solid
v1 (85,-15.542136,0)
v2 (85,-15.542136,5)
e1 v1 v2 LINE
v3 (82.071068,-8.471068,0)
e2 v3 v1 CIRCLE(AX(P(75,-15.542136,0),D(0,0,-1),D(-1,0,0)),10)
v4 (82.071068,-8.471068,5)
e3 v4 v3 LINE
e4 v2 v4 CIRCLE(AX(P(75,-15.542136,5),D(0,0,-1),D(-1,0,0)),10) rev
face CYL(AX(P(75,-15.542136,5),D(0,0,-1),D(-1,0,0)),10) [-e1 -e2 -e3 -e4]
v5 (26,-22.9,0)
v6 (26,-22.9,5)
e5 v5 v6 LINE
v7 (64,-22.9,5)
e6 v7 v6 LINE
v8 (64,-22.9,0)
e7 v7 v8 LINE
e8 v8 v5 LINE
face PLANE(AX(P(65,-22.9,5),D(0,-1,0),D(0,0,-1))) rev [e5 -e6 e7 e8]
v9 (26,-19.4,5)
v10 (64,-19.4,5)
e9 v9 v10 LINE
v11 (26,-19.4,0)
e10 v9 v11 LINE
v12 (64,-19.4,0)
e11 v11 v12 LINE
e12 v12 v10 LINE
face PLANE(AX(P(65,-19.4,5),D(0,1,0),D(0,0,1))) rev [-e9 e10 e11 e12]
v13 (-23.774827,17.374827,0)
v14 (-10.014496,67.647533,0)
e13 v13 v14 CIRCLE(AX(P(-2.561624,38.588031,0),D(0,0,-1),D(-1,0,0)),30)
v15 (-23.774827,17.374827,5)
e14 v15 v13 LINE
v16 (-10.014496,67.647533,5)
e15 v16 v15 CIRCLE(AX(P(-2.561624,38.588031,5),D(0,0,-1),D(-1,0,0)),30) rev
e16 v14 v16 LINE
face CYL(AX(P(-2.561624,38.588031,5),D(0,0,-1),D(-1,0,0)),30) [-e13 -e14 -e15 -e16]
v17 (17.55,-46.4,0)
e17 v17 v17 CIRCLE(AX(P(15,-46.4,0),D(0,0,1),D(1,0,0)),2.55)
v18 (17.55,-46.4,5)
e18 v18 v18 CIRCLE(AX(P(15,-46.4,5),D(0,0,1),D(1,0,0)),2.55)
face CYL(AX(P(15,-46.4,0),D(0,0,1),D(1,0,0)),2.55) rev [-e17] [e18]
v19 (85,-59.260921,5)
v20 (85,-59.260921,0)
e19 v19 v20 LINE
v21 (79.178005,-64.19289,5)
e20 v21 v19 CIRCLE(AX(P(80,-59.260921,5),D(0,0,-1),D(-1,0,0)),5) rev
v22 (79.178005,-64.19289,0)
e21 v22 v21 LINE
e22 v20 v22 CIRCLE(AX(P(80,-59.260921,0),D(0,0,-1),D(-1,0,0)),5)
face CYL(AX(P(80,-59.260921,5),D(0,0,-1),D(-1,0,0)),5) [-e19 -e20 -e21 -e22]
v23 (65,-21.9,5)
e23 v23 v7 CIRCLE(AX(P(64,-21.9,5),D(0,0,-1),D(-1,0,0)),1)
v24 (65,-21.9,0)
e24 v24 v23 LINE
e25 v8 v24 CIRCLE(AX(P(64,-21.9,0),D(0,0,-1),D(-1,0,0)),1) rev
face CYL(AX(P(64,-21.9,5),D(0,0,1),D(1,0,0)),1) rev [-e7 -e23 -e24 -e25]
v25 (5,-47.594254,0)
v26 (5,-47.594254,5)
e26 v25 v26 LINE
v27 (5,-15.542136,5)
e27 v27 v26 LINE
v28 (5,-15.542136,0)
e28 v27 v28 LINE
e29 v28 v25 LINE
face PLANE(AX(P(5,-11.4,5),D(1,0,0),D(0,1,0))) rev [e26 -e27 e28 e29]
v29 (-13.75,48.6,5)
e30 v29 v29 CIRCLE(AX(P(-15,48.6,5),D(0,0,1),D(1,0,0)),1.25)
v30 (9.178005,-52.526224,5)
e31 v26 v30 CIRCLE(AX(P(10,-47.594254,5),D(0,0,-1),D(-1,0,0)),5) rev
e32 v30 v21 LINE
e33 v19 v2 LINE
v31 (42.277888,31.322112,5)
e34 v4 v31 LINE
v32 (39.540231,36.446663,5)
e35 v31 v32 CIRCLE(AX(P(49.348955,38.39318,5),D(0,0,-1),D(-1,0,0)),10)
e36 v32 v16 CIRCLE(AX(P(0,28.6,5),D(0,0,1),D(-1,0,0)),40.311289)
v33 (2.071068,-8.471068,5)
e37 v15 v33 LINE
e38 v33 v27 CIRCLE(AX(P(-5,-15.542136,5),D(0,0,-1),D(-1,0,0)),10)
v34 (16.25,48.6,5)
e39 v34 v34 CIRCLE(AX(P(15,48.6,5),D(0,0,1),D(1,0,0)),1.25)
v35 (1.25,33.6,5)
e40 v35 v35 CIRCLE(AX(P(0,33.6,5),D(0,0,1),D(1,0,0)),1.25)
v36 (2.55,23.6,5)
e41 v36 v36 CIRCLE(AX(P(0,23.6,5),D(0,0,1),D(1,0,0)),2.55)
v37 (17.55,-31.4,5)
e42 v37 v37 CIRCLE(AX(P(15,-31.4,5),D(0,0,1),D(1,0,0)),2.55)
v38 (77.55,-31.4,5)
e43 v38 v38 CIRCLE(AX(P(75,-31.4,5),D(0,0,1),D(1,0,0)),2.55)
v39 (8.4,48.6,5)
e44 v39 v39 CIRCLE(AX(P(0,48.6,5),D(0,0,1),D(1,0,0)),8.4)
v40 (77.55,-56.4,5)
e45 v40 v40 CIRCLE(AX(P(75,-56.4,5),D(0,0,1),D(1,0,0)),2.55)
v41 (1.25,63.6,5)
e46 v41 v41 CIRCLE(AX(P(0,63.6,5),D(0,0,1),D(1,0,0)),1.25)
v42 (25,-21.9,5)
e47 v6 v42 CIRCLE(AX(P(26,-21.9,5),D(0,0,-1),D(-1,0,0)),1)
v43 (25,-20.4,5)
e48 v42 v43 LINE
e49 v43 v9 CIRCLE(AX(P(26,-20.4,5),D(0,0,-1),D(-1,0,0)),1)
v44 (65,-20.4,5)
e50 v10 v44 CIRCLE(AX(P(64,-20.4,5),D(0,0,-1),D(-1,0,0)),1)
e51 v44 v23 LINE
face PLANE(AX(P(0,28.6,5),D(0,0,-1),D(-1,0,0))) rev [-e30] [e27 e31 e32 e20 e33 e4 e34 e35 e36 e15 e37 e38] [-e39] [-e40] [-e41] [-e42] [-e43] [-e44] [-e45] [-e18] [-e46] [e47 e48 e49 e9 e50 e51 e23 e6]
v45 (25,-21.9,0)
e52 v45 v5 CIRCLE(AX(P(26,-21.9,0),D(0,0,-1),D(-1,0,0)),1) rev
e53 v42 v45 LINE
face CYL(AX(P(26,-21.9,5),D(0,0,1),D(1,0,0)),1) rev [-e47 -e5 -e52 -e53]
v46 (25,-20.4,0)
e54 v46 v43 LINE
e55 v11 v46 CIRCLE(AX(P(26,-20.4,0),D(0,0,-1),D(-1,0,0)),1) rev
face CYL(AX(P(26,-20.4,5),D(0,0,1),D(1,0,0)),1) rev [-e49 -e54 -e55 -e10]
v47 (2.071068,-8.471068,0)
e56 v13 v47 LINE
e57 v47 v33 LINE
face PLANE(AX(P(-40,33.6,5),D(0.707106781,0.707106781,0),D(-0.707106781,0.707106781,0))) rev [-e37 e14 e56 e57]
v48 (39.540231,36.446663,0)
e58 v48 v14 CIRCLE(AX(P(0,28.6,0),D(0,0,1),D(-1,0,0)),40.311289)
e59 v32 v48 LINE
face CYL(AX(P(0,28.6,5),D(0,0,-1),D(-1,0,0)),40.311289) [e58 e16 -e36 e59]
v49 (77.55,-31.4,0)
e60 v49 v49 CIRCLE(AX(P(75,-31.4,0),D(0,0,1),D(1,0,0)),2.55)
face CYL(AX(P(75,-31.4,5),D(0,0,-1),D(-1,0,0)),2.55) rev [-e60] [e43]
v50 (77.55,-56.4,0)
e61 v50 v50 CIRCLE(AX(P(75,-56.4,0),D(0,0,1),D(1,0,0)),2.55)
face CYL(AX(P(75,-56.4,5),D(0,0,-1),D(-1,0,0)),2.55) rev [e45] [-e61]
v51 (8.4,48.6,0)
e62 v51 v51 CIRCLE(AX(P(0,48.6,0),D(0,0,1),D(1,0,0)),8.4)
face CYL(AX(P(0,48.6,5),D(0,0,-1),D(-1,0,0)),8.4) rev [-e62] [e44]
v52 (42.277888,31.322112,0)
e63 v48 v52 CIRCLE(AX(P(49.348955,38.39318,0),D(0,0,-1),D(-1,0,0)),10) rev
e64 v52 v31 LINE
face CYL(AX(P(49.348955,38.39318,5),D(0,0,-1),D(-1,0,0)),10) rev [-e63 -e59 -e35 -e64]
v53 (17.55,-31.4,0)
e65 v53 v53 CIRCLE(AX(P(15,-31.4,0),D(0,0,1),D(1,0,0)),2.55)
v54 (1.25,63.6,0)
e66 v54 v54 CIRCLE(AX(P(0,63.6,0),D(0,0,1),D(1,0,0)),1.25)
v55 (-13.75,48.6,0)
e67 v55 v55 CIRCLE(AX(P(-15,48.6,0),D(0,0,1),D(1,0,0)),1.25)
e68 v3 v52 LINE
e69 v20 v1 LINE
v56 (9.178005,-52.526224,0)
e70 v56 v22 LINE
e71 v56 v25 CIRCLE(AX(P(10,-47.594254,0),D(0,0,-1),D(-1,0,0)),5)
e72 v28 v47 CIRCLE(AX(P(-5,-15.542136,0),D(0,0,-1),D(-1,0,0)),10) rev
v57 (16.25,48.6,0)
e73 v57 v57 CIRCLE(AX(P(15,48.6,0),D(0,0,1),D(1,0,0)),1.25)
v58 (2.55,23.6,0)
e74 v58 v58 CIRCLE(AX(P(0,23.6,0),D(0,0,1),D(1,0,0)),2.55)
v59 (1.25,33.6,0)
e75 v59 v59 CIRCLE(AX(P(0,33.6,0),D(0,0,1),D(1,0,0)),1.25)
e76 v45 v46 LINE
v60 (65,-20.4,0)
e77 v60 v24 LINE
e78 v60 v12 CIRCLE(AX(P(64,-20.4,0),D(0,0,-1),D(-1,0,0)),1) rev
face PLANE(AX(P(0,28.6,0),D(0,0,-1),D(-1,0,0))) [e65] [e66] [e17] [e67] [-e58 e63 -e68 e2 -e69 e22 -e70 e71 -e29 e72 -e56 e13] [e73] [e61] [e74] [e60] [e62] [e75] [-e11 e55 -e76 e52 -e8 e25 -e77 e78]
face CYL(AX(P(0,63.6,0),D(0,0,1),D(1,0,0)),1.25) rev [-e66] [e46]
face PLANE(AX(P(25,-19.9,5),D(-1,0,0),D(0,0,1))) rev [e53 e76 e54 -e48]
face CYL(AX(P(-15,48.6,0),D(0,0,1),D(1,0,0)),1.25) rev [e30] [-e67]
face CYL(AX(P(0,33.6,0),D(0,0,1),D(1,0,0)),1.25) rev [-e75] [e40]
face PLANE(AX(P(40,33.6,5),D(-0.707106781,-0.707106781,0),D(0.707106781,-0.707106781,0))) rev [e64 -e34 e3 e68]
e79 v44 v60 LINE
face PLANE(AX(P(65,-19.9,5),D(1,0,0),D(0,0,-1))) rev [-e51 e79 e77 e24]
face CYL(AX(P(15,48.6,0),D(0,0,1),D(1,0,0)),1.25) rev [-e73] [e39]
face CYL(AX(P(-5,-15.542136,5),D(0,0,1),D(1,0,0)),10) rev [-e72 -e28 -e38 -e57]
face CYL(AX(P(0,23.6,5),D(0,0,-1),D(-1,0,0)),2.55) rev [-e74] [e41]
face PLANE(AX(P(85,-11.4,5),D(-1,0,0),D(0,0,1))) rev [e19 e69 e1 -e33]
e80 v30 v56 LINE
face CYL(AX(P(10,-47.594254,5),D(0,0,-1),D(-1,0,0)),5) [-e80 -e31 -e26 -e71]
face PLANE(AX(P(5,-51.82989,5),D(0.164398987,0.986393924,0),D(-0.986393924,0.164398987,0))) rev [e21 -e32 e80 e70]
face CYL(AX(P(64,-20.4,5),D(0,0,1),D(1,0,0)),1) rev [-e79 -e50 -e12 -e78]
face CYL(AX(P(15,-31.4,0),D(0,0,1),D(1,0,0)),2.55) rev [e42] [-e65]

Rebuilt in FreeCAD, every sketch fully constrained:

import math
import FreeCAD as App
import Part
import Sketcher

V = App.Vector
Q = App.Units.Quantity


def edges_at(feature, points):
    """Names of the edges that pass closest to the given points."""
    edges = feature.Shape.Edges
    near = lambda p: min(range(len(edges)), key=lambda i: edges[i].distToShape(Part.Vertex(*p))[0])
    return sorted({f"Edge{near(p) + 1}" for p in points})


def add_polygon(sketch, points):
    """Adds a closed chain of lines whose ends are joined by coincident constraints."""
    first, n = sketch.GeometryCount, len(points)
    for a, b in zip(points, points[1:] + points[:1]):
        sketch.addGeometry(Part.LineSegment(App.Vector(*a, 0), App.Vector(*b, 0)), False)
    for i in range(n):
        sketch.addConstraint(Sketcher.Constraint("Coincident", first + i, 2, first + (i + 1) % n, 1))

doc = App.newDocument("Part")
body = doc.addObject("PartDesign::Body", "Body")

# Sketch on XY plane
sketch1 = body.newObject("Sketcher::SketchObject", "Sketch")
sketch1.AttachmentSupport = (doc.getObject("XY_Plane"), [""])
sketch1.MapMode = "FlatFace"
sketch1.addGeometry(Part.LineSegment(V(85, -11.4, 0), V(40, 33.6, 0)), False)
sketch1.addGeometry(Part.ArcOfCircle(Part.Circle(V(0, 28.6, 0), V(0, 0, 1), 40.311289), math.radians(7.125016), math.radians(172.874984)), False)
sketch1.addGeometry(Part.LineSegment(V(-40, 33.6, 0), V(5, -11.4, 0)), False)
sketch1.addGeometry(Part.LineSegment(V(5, -11.4, 0), V(5, -71.4, 0)), False)
sketch1.addGeometry(Part.LineSegment(V(5, -71.4, 0), V(85, -71.4, 0)), False)
sketch1.addGeometry(Part.LineSegment(V(85, -71.4, 0), V(85, -11.4, 0)), False)
sketch1.addGeometry(Part.Circle(V(75, -56.4, 0), V(0, 0, 1), 2.55), False)
sketch1.addGeometry(Part.Circle(V(75, -31.4, 0), V(0, 0, 1), 2.55), False)
sketch1.addGeometry(Part.Circle(V(0, 23.6, 0), V(0, 0, 1), 2.55), False)
sketch1.addGeometry(Part.Circle(V(0, 48.6, 0), V(0, 0, 1), 8.4), False)
sketch1.addConstraint(Sketcher.Constraint("Coincident", 0, 2, 1, 1))
sketch1.addConstraint(Sketcher.Constraint("Coincident", 1, 2, 2, 1))
sketch1.addConstraint(Sketcher.Constraint("Coincident", 2, 2, 3, 1))
sketch1.addConstraint(Sketcher.Constraint("Coincident", 3, 2, 4, 1))
sketch1.addConstraint(Sketcher.Constraint("Coincident", 4, 2, 5, 1))
sketch1.addConstraint(Sketcher.Constraint("Coincident", 5, 2, 0, 1))
sketch1.addConstraint(Sketcher.Constraint("Vertical", 3))
sketch1.addConstraint(Sketcher.Constraint("Horizontal", 4))
sketch1.addConstraint(Sketcher.Constraint("Vertical", 5))
sketch1.addConstraint(Sketcher.Constraint("Equal", 6, 7))
sketch1.addConstraint(Sketcher.Constraint("Equal", 7, 8))
sketch1.addConstraint(Sketcher.Constraint("Symmetric", 0, 2, 1, 2, -2))
sketch1.addConstraint(Sketcher.Constraint("PointOnObject", 8, 3, -2))
sketch1.addConstraint(Sketcher.Constraint("PointOnObject", 9, 3, -2))
sketch1.addConstraint(Sketcher.Constraint("Parallel", 0, 2))
sketch1.addConstraint(Sketcher.Constraint("Horizontal", 2, 2, 5, 2))
sketch1.addConstraint(Sketcher.Constraint("Vertical", 6, 3, 7, 3))
sketch1.addConstraint(Sketcher.Constraint("Diameter", 6, 5.1))
sketch1.addConstraint(Sketcher.Constraint("Diameter", 9, 16.8))
sketch1.addConstraint(Sketcher.Constraint("DistanceX", 4, 1, 4, 2, 80.0))
sketch1.addConstraint(Sketcher.Constraint("DistanceY", 3, 2, 3, 1, 60.0))
sketch1.addConstraint(Sketcher.Constraint("Angle", 0, Q("135 deg")))
sketch1.addConstraint(Sketcher.Constraint("DistanceX", -1, 1, 6, 3, 75.0))
sketch1.addConstraint(Sketcher.Constraint("DistanceX", -1, 1, 2, 2, 5.0))
sketch1.addConstraint(Sketcher.Constraint("DistanceY", 6, 3, 1, 3, 85.0))
sketch1.addConstraint(Sketcher.Constraint("DistanceY", 6, 3, 7, 3, 25.0))
sketch1.addConstraint(Sketcher.Constraint("DistanceY", 8, 3, 1, 3, 5.0))
sketch1.addConstraint(Sketcher.Constraint("DistanceY", 1, 3, 9, 3, 20.0))
sketch1.addConstraint(Sketcher.Constraint("DistanceY", 1, 3, 0, 2, 5.0))
sketch1.addConstraint(Sketcher.Constraint("DistanceY", -1, 1, 1, 3, 28.6))
pad1 = body.newObject("PartDesign::Pad", "Pad")
pad1.Profile = sketch1
pad1.Length = 5
doc.recompute()

fillet = body.newObject("PartDesign::Fillet", "Fillet")
fillet.Base = (pad1, edges_at(pad1, [(40, 33.6, 2.5), (85, -11.4, 2.5), (5, -11.4, 2.5)]))
fillet.Radius = 10

# Sketch on XY plane
sketch2 = body.newObject("Sketcher::SketchObject", "Sketch001")
sketch2.AttachmentSupport = (doc.getObject("XY_Plane"), [""])
sketch2.MapMode = "FlatFace"
sketch2.AttachmentOffset = App.Placement(V(0, 0, 5), App.Rotation())
sketch2.addGeometry(Part.Circle(V(15, -46.4, 0), V(0, 0, 1), 2.55), False)
sketch2.addGeometry(Part.Circle(V(15, -31.4, 0), V(0, 0, 1), 2.55), False)
sketch2.addConstraint(Sketcher.Constraint("Equal", 0, 1))
sketch2.addConstraint(Sketcher.Constraint("Vertical", 0, 3, 1, 3))
sketch2.addConstraint(Sketcher.Constraint("Diameter", 0, 5.1))
sketch2.addConstraint(Sketcher.Constraint("DistanceX", -1, 1, 0, 3, 15.0))
sketch2.addConstraint(Sketcher.Constraint("DistanceY", 0, 3, 1, 3, 15.0))
sketch2.addConstraint(Sketcher.Constraint("DistanceY", 0, 3, -1, 1, 46.4))
pocket1 = body.newObject("PartDesign::Pocket", "Pocket")
pocket1.Profile = sketch2
pocket1.Type = "ThroughAll"
doc.recompute()

fillet2 = body.newObject("PartDesign::Fillet", "Fillet001")
fillet2.Base = (pocket1, edges_at(pocket1, [(-40, 33.6, 2.5)]))
fillet2.Radius = 30

# Sketch on XY plane
sketch3 = body.newObject("Sketcher::SketchObject", "Sketch002")
sketch3.AttachmentSupport = (doc.getObject("XY_Plane"), [""])
sketch3.MapMode = "FlatFace"
add_polygon(sketch3, [(65, -19.9), (65, -22.9), (25, -22.9), (25, -19.9)])  # lines 0-3
sketch3.addConstraint(Sketcher.Constraint("Vertical", 0))
sketch3.addConstraint(Sketcher.Constraint("Horizontal", 1))
sketch3.addConstraint(Sketcher.Constraint("Vertical", 2))
sketch3.addConstraint(Sketcher.Constraint("Horizontal", 3))
sketch3.addConstraint(Sketcher.Constraint("DistanceX", 1, 2, 1, 1, 40.0))
sketch3.addConstraint(Sketcher.Constraint("DistanceY", 0, 2, 0, 1, 3.0))
sketch3.addConstraint(Sketcher.Constraint("DistanceX", -1, 1, 0, 2, 65.0))
sketch3.addConstraint(Sketcher.Constraint("DistanceY", 0, 2, -1, 1, 22.9))
pocket2 = body.newObject("PartDesign::Pocket", "Pocket001")
pocket2.Profile = sketch3
pocket2.Type = "ThroughAll"
pocket2.Reversed = True

# Sketch on XY plane
sketch4 = body.newObject("Sketcher::SketchObject", "Sketch003")
sketch4.AttachmentSupport = (doc.getObject("XY_Plane"), [""])
sketch4.MapMode = "FlatFace"
add_polygon(sketch4, [(65, -19.4), (65, -19.9), (25, -19.9), (25, -19.4)])  # lines 0-3
sketch4.addConstraint(Sketcher.Constraint("Vertical", 0))
sketch4.addConstraint(Sketcher.Constraint("Horizontal", 1))
sketch4.addConstraint(Sketcher.Constraint("Vertical", 2))
sketch4.addConstraint(Sketcher.Constraint("Horizontal", 3))
sketch4.addConstraint(Sketcher.Constraint("DistanceX", 1, 2, 1, 1, 40.0))
sketch4.addConstraint(Sketcher.Constraint("DistanceY", 0, 2, 0, 1, 0.5))
sketch4.addConstraint(Sketcher.Constraint("DistanceX", -1, 1, 0, 2, 65.0))
sketch4.addConstraint(Sketcher.Constraint("DistanceY", 0, 2, -1, 1, 19.9))
pocket3 = body.newObject("PartDesign::Pocket", "Pocket002")
pocket3.Profile = sketch4
pocket3.Type = "ThroughAll"
pocket3.Reversed = True
doc.recompute()

fillet3 = body.newObject("PartDesign::Fillet", "Fillet002")
fillet3.Base = (pocket3, edges_at(pocket3, [
    (25, -22.9, 2.5),
    (65, -22.9, 2.5),
    (65, -19.4, 2.5),
    (25, -19.4, 2.5),
]))
fillet3.Radius = 1

# Sketch on XY plane
sketch5 = body.newObject("Sketcher::SketchObject", "Sketch004")
sketch5.AttachmentSupport = (doc.getObject("XY_Plane"), [""])
sketch5.MapMode = "FlatFace"
add_polygon(sketch5, [(5, -51.82989), (122.420662, -71.4), (5, -71.4)])  # lines 0-2
sketch5.addConstraint(Sketcher.Constraint("Horizontal", 1))
sketch5.addConstraint(Sketcher.Constraint("Vertical", 2))
sketch5.addConstraint(Sketcher.Constraint("DistanceX", -1, 1, 1, 2, 5.0))
sketch5.addConstraint(Sketcher.Constraint("DistanceY", 0, 2, -1, 1, 71.4))
sketch5.addConstraint(Sketcher.Constraint("DistanceY", 2, 1, 2, 2, 19.57011))
sketch5.addConstraint(Sketcher.Constraint("DistanceX", 1, 2, 1, 1, 117.420662))
pocket4 = body.newObject("PartDesign::Pocket", "Pocket003")
pocket4.Profile = sketch5
pocket4.Type = "ThroughAll"
pocket4.Reversed = True
doc.recompute()

fillet4 = body.newObject("PartDesign::Fillet", "Fillet003")
fillet4.Base = (pocket4, edges_at(pocket4, [(85, -65.163, 2.5), (5, -51.83, 2.5)]))
fillet4.Radius = 5

# Sketch on XY plane
sketch6 = body.newObject("Sketcher::SketchObject", "Sketch005")
sketch6.AttachmentSupport = (doc.getObject("XY_Plane"), [""])
sketch6.MapMode = "FlatFace"
sketch6.AttachmentOffset = App.Placement(V(0, 0, 5), App.Rotation())
sketch6.addGeometry(Part.Circle(V(0, 63.6, 0), V(0, 0, 1), 1.25), False)
sketch6.addGeometry(Part.Circle(V(15, 48.6, 0), V(0, 0, 1), 1.25), False)
sketch6.addGeometry(Part.Circle(V(0, 33.6, 0), V(0, 0, 1), 1.25), False)
sketch6.addGeometry(Part.Circle(V(-15, 48.6, 0), V(0, 0, 1), 1.25), False)
sketch6.addConstraint(Sketcher.Constraint("Equal", 0, 1))
sketch6.addConstraint(Sketcher.Constraint("Equal", 1, 2))
sketch6.addConstraint(Sketcher.Constraint("Equal", 2, 3))
sketch6.addConstraint(Sketcher.Constraint("Symmetric", 1, 3, 3, 3, -2))
sketch6.addConstraint(Sketcher.Constraint("PointOnObject", 0, 3, -2))
sketch6.addConstraint(Sketcher.Constraint("PointOnObject", 2, 3, -2))
sketch6.addConstraint(Sketcher.Constraint("Diameter", 0, 2.5))
sketch6.addConstraint(Sketcher.Constraint("DistanceX", -1, 1, 1, 3, 15.0))
sketch6.addConstraint(Sketcher.Constraint("DistanceY", 1, 3, 0, 3, 15.0))
sketch6.addConstraint(Sketcher.Constraint("DistanceY", 2, 3, 1, 3, 15.0))
sketch6.addConstraint(Sketcher.Constraint("DistanceY", -1, 1, 0, 3, 63.6))
pocket5 = body.newObject("PartDesign::Pocket", "Pocket004")
pocket5.Profile = sketch6
pocket5.Type = "ThroughAll"

doc.recompute()
